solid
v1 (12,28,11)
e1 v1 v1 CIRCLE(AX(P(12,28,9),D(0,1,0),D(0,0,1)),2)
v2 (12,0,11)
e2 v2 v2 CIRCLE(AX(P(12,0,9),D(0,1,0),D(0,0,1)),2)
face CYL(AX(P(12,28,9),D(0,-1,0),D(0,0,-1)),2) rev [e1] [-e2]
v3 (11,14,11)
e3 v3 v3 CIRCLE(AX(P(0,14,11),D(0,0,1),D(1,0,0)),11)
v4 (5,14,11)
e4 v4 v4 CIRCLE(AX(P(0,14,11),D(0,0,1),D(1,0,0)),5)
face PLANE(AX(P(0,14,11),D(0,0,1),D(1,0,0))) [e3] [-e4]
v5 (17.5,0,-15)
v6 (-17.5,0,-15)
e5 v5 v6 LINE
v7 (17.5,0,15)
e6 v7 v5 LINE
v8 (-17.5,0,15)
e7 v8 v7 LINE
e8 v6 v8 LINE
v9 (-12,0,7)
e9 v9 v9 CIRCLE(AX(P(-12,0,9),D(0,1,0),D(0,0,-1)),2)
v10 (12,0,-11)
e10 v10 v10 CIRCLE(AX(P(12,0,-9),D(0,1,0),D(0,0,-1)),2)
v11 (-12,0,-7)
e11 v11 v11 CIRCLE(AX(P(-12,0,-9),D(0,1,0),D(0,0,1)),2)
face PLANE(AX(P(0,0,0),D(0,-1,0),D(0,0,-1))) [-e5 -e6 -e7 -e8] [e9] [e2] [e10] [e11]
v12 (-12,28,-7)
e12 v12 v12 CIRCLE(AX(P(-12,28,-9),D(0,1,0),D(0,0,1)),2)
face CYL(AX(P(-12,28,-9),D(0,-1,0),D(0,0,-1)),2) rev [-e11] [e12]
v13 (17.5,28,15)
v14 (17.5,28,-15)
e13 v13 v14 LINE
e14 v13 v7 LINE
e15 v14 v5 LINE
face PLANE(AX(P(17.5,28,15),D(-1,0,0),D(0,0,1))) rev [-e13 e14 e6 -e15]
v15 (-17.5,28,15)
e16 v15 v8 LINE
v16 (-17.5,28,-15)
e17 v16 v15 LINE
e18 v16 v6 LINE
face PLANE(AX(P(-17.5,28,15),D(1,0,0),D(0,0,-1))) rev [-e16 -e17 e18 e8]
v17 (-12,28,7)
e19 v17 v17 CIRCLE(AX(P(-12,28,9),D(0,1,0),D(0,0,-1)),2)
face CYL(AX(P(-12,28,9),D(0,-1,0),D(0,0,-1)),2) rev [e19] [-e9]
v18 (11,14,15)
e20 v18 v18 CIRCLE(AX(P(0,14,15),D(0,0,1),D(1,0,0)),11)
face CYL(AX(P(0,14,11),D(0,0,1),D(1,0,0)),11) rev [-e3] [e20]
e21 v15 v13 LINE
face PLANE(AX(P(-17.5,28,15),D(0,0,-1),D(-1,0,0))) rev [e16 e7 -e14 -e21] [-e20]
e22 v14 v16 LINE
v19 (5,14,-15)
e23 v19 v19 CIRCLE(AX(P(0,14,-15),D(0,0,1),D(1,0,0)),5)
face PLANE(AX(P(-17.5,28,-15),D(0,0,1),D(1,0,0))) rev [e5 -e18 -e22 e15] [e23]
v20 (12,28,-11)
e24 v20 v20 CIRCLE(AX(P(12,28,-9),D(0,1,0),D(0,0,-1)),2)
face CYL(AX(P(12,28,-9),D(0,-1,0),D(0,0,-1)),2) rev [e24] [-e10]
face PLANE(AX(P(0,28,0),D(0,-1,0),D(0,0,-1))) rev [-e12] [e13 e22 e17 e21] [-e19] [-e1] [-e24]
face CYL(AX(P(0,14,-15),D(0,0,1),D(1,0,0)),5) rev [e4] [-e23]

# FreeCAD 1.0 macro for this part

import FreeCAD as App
import Part
import Sketcher

V = App.Vector
Q = App.Units.Quantity


def add_polygon(sketch, points):
    """Adds a closed chain of lines whose ends are joined by coincident constraints."""
    first, n = sketch.GeometryCount, len(points)
    for a, b in zip(points, points[1:] + points[:1]):
        sketch.addGeometry(Part.LineSegment(App.Vector(*a, 0), App.Vector(*b, 0)), False)
    for i in range(n):
        sketch.addConstraint(Sketcher.Constraint("Coincident", first + i, 2, first + (i + 1) % n, 1))

doc = App.newDocument("Part")
body = doc.addObject("PartDesign::Body", "Body")

# Sketch on XZ plane
sketch1 = doc.addObject("Sketcher::SketchObject", "Sketch")
body.addObject(sketch1)
sketch1.AttachmentSupport = (doc.XZ_Plane, [""])
sketch1.MapMode = "FlatFace"
add_polygon(sketch1, [(-17.5, -15), (-17.5, 15), (17.5, 15), (17.5, -15)])  # lines 0-3
sketch1.addGeometry(Part.Circle(V(-12, 9, 0), V(0, 0, 1), 2), False)  # 4
sketch1.addGeometry(Part.Circle(V(12, 9, 0), V(0, 0, 1), 2), False)  # 5
sketch1.addGeometry(Part.Circle(V(-12, -9, 0), V(0, 0, 1), 2), False)  # 6
sketch1.addGeometry(Part.Circle(V(12, -9, 0), V(0, 0, 1), 2), False)  # 7
sketch1.addConstraint(Sketcher.Constraint("Vertical", 0))
sketch1.addConstraint(Sketcher.Constraint("Horizontal", 1))
sketch1.addConstraint(Sketcher.Constraint("Vertical", 2))
sketch1.addConstraint(Sketcher.Constraint("Horizontal", 3))
sketch1.addConstraint(Sketcher.Constraint("Equal", 4, 5))
sketch1.addConstraint(Sketcher.Constraint("Equal", 5, 6))
sketch1.addConstraint(Sketcher.Constraint("Equal", 6, 7))
sketch1.addConstraint(Sketcher.Constraint("Symmetric", 5, 3, 6, 3, -1, 1))
sketch1.addConstraint(Sketcher.Constraint("Symmetric", 4, 3, 7, 3, -1, 1))
sketch1.addConstraint(Sketcher.Constraint("Symmetric", 0, 2, 2, 2, -1, 1))
sketch1.addConstraint(Sketcher.Constraint("Symmetric", 4, 3, 5, 3, -2))
sketch1.addConstraint(Sketcher.Constraint("Diameter", 4, Q("4 mm")))
sketch1.addConstraint(Sketcher.Constraint("DistanceX", 1, 1, 1, 2, Q("35 mm")))
sketch1.addConstraint(Sketcher.Constraint("DistanceY", 0, 1, 0, 2, Q("30 mm")))
sketch1.addConstraint(Sketcher.Constraint("DistanceX", 4, 3, -1, 1, Q("12 mm")))
sketch1.addConstraint(Sketcher.Constraint("DistanceY", -1, 1, 4, 3, Q("9 mm")))
pad1 = doc.addObject("PartDesign::Pad", "Pad")
body.addObject(pad1)
pad1.Profile = sketch1
pad1.Length = 28
pad1.Reversed = True

# Sketch on XY plane
sketch2 = doc.addObject("Sketcher::SketchObject", "Sketch001")
body.addObject(sketch2)
sketch2.AttachmentSupport = (doc.XY_Plane, [""])
sketch2.MapMode = "FlatFace"
sketch2.AttachmentOffset = App.Placement(V(0, 0, 15), App.Rotation())
sketch2.addGeometry(Part.Circle(V(0, 14, 0), V(0, 0, 1), 11), False)
sketch2.addConstraint(Sketcher.Constraint("PointOnObject", 0, 3, -2))
sketch2.addConstraint(Sketcher.Constraint("Diameter", 0, Q("22 mm")))
sketch2.addConstraint(Sketcher.Constraint("DistanceY", -1, 1, 0, 3, Q("14 mm")))
pocket1 = doc.addObject("PartDesign::Pocket", "Pocket")
body.addObject(pocket1)
pocket1.Profile = sketch2
pocket1.Length = 4

# Sketch on XY plane
sketch3 = doc.addObject("Sketcher::SketchObject", "Sketch002")
body.addObject(sketch3)
sketch3.AttachmentSupport = (doc.XY_Plane, [""])
sketch3.MapMode = "FlatFace"
sketch3.AttachmentOffset = App.Placement(V(0, 0, 11), App.Rotation())
sketch3.addGeometry(Part.Circle(V(0, 14, 0), V(0, 0, 1), 5), False)
sketch3.addConstraint(Sketcher.Constraint("PointOnObject", 0, 3, -2))
sketch3.addConstraint(Sketcher.Constraint("Diameter", 0, Q("10 mm")))
sketch3.addConstraint(Sketcher.Constraint("DistanceY", -1, 1, 0, 3, Q("14 mm")))
pocket2 = doc.addObject("PartDesign::Pocket", "Pocket001")
body.addObject(pocket2)
pocket2.Profile = sketch3
pocket2.Type = "ThroughAll"

doc.recompute()
